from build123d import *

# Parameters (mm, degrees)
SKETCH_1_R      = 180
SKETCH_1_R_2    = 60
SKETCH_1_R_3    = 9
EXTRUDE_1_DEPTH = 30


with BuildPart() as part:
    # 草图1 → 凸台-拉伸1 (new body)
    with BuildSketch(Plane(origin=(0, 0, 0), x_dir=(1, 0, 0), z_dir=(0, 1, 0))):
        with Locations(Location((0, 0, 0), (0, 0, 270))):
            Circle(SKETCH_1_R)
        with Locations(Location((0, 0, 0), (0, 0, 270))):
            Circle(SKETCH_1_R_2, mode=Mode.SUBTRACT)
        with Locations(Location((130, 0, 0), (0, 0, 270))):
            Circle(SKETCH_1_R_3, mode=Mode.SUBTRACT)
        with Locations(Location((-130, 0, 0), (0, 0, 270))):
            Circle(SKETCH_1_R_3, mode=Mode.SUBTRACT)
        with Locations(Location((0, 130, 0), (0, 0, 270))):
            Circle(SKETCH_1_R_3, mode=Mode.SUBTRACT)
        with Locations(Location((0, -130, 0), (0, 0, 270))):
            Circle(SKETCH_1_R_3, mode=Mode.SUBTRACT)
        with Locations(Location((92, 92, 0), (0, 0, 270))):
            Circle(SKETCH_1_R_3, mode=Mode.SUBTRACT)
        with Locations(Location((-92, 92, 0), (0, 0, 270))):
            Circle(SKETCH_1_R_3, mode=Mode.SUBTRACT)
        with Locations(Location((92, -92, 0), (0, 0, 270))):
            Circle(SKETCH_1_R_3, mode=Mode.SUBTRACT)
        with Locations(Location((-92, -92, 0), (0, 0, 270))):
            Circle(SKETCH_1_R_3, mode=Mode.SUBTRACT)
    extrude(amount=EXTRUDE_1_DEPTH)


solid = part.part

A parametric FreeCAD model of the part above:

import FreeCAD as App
import Part
import Sketcher
Q = App.Units.Quantity

doc = App.newDocument("Part")
body = doc.addObject("PartDesign::Body", "Body")

# Sketch on XZ plane
sketch1 = body.newObject("Sketcher::SketchObject", "Sketch")
sketch1.AttachmentSupport = (doc.getObject("XZ_Plane"), [""])
sketch1.MapMode = "FlatFace"
sketch1.addGeometry(Part.Circle(App.Vector(0, 0, 0), App.Vector(0, 0, 1), 180), False)
sketch1.addGeometry(Part.Circle(App.Vector(-92, -92, 0), App.Vector(0, 0, 1), 9), False)
sketch1.addGeometry(Part.Circle(App.Vector(0, -130, 0), App.Vector(0, 0, 1), 9), False)
sketch1.addGeometry(Part.Circle(App.Vector(-130, 0, 0), App.Vector(0, 0, 1), 9), False)
sketch1.addGeometry(Part.Circle(App.Vector(-92, 92, 0), App.Vector(0, 0, 1), 9), False)
sketch1.addGeometry(Part.Circle(App.Vector(92, -92, 0), App.Vector(0, 0, 1), 9), False)
sketch1.addGeometry(Part.Circle(App.Vector(130, 0, 0), App.Vector(0, 0, 1), 9), False)
sketch1.addGeometry(Part.Circle(App.Vector(0, 0, 0), App.Vector(0, 0, 1), 60), False)
sketch1.addGeometry(Part.Circle(App.Vector(0, 130, 0), App.Vector(0, 0, 1), 9), False)
sketch1.addGeometry(Part.Circle(App.Vector(92, 92, 0), App.Vector(0, 0, 1), 9), False)
sketch1.addConstraint(Sketcher.Constraint("Coincident", 0, 3, -1, 1))
sketch1.addConstraint(Sketcher.Constraint("Coincident", 7, 3, -1, 1))
sketch1.addConstraint(Sketcher.Constraint("Equal", 1, 2))
sketch1.addConstraint(Sketcher.Constraint("Equal", 2, 3))
sketch1.addConstraint(Sketcher.Constraint("Equal", 3, 4))
sketch1.addConstraint(Sketcher.Constraint("Equal", 4, 5))
sketch1.addConstraint(Sketcher.Constraint("Equal", 5, 6))
sketch1.addConstraint(Sketcher.Constraint("Equal", 6, 8))
sketch1.addConstraint(Sketcher.Constraint("Equal", 8, 9))
sketch1.addConstraint(Sketcher.Constraint("Symmetric", 4, 3, 5, 3, -1, 1))
sketch1.addConstraint(Sketcher.Constraint("Symmetric", 3, 3, 6, 3, -1, 1))
sketch1.addConstraint(Sketcher.Constraint("Symmetric", 2, 3, 8, 3, -1, 1))
sketch1.addConstraint(Sketcher.Constraint("Symmetric", 1, 3, 9, 3, -1, 1))
sketch1.addConstraint(Sketcher.Constraint("Symmetric", 1, 3, 5, 3, -2))
sketch1.addConstraint(Sketcher.Constraint("PointOnObject", 2, 3, -2))
sketch1.addConstraint(Sketcher.Constraint("PointOnObject", 3, 3, -1))
sketch1.addConstraint(Sketcher.Constraint("Diameter", 0, Q("360 mm")))
sketch1.addConstraint(Sketcher.Constraint("Diameter", 1, Q("18 mm")))
sketch1.addConstraint(Sketcher.Constraint("Diameter", 7, Q("120 mm")))
sketch1.addConstraint(Sketcher.Constraint("DistanceX", 1, 3, -1, 1, Q("92 mm")))
sketch1.addConstraint(Sketcher.Constraint("DistanceY", 1, 3, -1, 1, Q("92 mm")))
sketch1.addConstraint(Sketcher.Constraint("DistanceY", 2, 3, -1, 1, Q("130 mm")))
sketch1.addConstraint(Sketcher.Constraint("DistanceX", 3, 3, -1, 1, Q("130 mm")))
pad1 = body.newObject("PartDesign::Pad", "Pad")
pad1.Profile = sketch1
pad1.Length = 30
pad1.Reversed = True

doc.recompute()
